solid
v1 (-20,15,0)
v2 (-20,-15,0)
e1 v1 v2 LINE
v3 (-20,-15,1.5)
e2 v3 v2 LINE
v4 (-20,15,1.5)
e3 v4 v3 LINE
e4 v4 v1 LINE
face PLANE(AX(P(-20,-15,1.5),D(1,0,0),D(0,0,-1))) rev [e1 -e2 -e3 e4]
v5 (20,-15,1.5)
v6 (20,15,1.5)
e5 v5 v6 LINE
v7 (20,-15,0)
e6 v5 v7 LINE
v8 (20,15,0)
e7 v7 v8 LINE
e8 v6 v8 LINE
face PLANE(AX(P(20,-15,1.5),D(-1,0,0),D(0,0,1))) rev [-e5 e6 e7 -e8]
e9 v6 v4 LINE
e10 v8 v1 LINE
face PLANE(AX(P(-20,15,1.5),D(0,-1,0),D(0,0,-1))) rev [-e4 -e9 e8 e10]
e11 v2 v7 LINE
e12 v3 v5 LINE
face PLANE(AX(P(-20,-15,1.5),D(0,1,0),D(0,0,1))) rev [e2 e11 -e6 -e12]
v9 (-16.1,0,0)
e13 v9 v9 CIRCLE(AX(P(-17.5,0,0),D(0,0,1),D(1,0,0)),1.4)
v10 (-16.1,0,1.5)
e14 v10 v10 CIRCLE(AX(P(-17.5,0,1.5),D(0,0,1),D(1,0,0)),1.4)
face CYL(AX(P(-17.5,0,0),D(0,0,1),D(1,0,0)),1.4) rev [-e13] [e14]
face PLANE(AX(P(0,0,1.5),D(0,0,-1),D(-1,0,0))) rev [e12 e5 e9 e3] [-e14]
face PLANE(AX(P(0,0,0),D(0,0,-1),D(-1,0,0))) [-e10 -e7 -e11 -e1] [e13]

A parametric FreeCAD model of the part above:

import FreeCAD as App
import Part
import Sketcher

V = App.Vector


def add_polygon(sketch, points):
    """Adds a closed chain of lines whose ends are joined by coincident constraints."""
    first, n = sketch.GeometryCount, len(points)
    for a, b in zip(points, points[1:] + points[:1]):
        sketch.addGeometry(Part.LineSegment(App.Vector(*a, 0), App.Vector(*b, 0)), False)
    for i in range(n):
        sketch.addConstraint(Sketcher.Constraint("Coincident", first + i, 2, first + (i + 1) % n, 1))

doc = App.newDocument("Part")
body = doc.addObject("PartDesign::Body", "Body")

# Sketch on XY plane
sketch1 = body.newObject("Sketcher::SketchObject", "Sketch")
sketch1.AttachmentSupport = (doc.getObject("XY_Plane"), [""])
sketch1.MapMode = "FlatFace"
add_polygon(sketch1, [(-20, 15), (-20, -15), (20, -15), (20, 15)])  # lines 0-3
sketch1.addConstraint(Sketcher.Constraint("Vertical", 0))
sketch1.addConstraint(Sketcher.Constraint("Horizontal", 1))
sketch1.addConstraint(Sketcher.Constraint("Vertical", 2))
sketch1.addConstraint(Sketcher.Constraint("Horizontal", 3))
sketch1.addConstraint(Sketcher.Constraint("Symmetric", 0, 2, 2, 2, -1, 1))
sketch1.addConstraint(Sketcher.Constraint("DistanceX", 1, 1, 1, 2, 40.0))
sketch1.addConstraint(Sketcher.Constraint("DistanceY", 0, 2, 0, 1, 30.0))
pad1 = body.newObject("PartDesign::Pad", "Pad")
pad1.Profile = sketch1
pad1.Length = 1.5

# Sketch on XY plane
sketch2 = body.newObject("Sketcher::SketchObject", "Sketch001")
sketch2.AttachmentSupport = (doc.getObject("XY_Plane"), [""])
sketch2.MapMode = "FlatFace"
sketch2.AttachmentOffset = App.Placement(V(0, 0, 1.5), App.Rotation())
sketch2.addGeometry(Part.Circle(V(-17.5, 0, 0), V(0, 0, 1), 1.4), False)
sketch2.addConstraint(Sketcher.Constraint("PointOnObject", 0, 3, -1))
sketch2.addConstraint(Sketcher.Constraint("Diameter", 0, 2.8))
sketch2.addConstraint(Sketcher.Constraint("DistanceX", 0, 3, -1, 1, 17.5))
pocket1 = body.newObject("PartDesign::Pocket", "Pocket")
pocket1.Profile = sketch2
pocket1.Type = "ThroughAll"

doc.recompute()
